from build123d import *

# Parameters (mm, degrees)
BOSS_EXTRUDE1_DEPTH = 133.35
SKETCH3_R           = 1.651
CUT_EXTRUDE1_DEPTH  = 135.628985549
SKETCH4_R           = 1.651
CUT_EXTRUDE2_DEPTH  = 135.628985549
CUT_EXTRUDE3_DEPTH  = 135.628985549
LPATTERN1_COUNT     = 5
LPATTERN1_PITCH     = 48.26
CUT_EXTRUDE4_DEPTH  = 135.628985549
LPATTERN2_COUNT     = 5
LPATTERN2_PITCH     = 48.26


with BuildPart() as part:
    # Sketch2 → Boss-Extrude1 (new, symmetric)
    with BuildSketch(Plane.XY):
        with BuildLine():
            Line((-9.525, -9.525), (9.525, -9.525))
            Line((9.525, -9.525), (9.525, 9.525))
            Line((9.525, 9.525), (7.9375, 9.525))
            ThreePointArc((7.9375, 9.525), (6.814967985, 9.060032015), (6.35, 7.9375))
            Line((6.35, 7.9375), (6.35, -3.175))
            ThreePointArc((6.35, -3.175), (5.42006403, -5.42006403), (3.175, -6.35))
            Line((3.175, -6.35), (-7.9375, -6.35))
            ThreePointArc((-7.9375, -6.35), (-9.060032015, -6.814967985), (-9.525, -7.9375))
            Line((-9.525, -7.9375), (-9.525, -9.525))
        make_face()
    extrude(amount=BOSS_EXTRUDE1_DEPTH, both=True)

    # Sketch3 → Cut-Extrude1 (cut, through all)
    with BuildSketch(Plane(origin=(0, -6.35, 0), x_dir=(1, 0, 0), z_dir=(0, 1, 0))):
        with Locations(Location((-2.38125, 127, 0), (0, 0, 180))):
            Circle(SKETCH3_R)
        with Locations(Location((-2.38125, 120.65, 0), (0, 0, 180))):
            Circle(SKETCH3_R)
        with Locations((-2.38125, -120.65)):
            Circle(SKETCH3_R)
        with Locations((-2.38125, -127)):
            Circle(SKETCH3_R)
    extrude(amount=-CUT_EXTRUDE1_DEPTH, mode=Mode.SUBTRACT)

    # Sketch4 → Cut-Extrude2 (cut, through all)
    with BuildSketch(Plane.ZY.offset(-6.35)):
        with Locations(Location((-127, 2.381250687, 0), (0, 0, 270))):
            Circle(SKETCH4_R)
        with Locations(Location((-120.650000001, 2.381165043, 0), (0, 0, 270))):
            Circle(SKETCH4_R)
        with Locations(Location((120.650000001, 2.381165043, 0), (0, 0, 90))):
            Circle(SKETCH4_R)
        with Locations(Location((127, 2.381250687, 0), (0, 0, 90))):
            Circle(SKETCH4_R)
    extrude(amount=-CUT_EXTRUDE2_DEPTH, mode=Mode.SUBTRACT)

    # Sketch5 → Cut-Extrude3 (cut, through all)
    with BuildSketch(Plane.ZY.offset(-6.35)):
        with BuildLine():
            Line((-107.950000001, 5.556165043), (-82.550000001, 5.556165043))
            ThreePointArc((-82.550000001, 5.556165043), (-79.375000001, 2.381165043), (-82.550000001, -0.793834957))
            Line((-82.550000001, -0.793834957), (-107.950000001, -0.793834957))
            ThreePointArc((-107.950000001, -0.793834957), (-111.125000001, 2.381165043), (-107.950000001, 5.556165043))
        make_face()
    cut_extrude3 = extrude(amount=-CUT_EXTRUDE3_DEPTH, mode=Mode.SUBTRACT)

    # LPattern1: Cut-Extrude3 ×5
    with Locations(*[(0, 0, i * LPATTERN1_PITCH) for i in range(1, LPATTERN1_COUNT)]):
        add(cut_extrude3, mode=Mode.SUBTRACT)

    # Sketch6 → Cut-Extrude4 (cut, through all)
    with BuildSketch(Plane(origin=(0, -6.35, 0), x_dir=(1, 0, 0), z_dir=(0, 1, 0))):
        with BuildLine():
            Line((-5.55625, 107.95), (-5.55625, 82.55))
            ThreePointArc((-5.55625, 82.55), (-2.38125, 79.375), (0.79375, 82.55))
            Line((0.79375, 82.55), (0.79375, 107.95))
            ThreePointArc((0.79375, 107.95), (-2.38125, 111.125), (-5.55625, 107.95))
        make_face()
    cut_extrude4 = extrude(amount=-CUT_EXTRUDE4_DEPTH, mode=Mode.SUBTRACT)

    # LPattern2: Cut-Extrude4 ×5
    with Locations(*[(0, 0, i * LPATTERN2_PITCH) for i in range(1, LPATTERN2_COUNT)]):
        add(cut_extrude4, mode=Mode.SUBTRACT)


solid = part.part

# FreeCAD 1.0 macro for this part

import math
import FreeCAD as App
import Part
import Sketcher
Q = App.Units.Quantity

doc = App.newDocument("Part")
body = doc.addObject("PartDesign::Body", "Body")

# Sketch on XY plane
sketch1 = body.newObject("Sketcher::SketchObject", "Sketch")
sketch1.AttachmentSupport = (doc.getObject("XY_Plane"), [""])
sketch1.MapMode = "FlatFace"
sketch1.addGeometry(Part.LineSegment(App.Vector(-9.5, -9.5, 0), App.Vector(9.5, -9.5, 0)), False)
sketch1.addGeometry(Part.LineSegment(App.Vector(9.5, -9.5, 0), App.Vector(9.5, 9.5, 0)), False)
sketch1.addGeometry(Part.LineSegment(App.Vector(9.5, 9.5, 0), App.Vector(7.9, 9.5, 0)), False)
sketch1.addGeometry(Part.ArcOfCircle(Part.Circle(App.Vector(7.9, 7.9, 0), App.Vector(0, 0, 1), 1.6), math.radians(90), math.radians(180)), False)
sketch1.addGeometry(Part.LineSegment(App.Vector(6.3, 7.9, 0), App.Vector(6.3, -3.2, 0)), False)
sketch1.addGeometry(Part.ArcOfCircle(Part.Circle(App.Vector(3.2, -3.2, 0), App.Vector(0, 0, 1), 3.2), math.radians(-90), math.radians(0)), False)
sketch1.addGeometry(Part.LineSegment(App.Vector(3.2, -6.3, 0), App.Vector(-7.9, -6.3, 0)), False)
sketch1.addGeometry(Part.ArcOfCircle(Part.Circle(App.Vector(-7.9, -7.9, 0), App.Vector(0, 0, 1), 1.6), math.radians(90), math.radians(180)), False)
sketch1.addGeometry(Part.LineSegment(App.Vector(-9.5, -7.9, 0), App.Vector(-9.5, -9.5, 0)), False)
sketch1.addConstraint(Sketcher.Constraint("Coincident", 0, 2, 1, 1))
sketch1.addConstraint(Sketcher.Constraint("Coincident", 1, 2, 2, 1))
sketch1.addConstraint(Sketcher.Constraint("Tangent", 2, 2, 3, 1))
sketch1.addConstraint(Sketcher.Constraint("Tangent", 3, 2, 4, 1))
sketch1.addConstraint(Sketcher.Constraint("Tangent", 4, 2, 5, 2))
sketch1.addConstraint(Sketcher.Constraint("Tangent", 5, 1, 6, 1))
sketch1.addConstraint(Sketcher.Constraint("Tangent", 6, 2, 7, 1))
sketch1.addConstraint(Sketcher.Constraint("Tangent", 7, 2, 8, 1))
sketch1.addConstraint(Sketcher.Constraint("Coincident", 8, 2, 0, 1))
sketch1.addConstraint(Sketcher.Constraint("Horizontal", 0))
sketch1.addConstraint(Sketcher.Constraint("Vertical", 1))
sketch1.addConstraint(Sketcher.Constraint("Horizontal", 2))
sketch1.addConstraint(Sketcher.Constraint("Vertical", 4))
sketch1.addConstraint(Sketcher.Constraint("Horizontal", 6))
sketch1.addConstraint(Sketcher.Constraint("Vertical", 8))
sketch1.addConstraint(Sketcher.Constraint("Equal", 3, 7))
sketch1.addConstraint(Sketcher.Constraint("Symmetric", 3, 3, 7, 3, -1, 1))
sketch1.addConstraint(Sketcher.Constraint("Symmetric", 1, 2, 8, 2, -1, 1))
sketch1.addConstraint(Sketcher.Constraint("Equal", 0, 1))
sketch1.addConstraint(Sketcher.Constraint("Radius", 3, Q("0.0625 in")))
sketch1.addConstraint(Sketcher.Constraint("Radius", 5, Q("0.125 in")))
sketch1.addConstraint(Sketcher.Constraint("DistanceX", 0, 1, 0, 2, Q("0.75 in")))
pad1 = body.newObject("PartDesign::Pad", "Pad")
pad1.Profile = sketch1
pad1.Length = Q("10.5 in")
pad1.Midplane = True

# Sketch on XZ plane
sketch2 = body.newObject("Sketcher::SketchObject", "Sketch001")
sketch2.AttachmentSupport = (doc.getObject("XZ_Plane"), [""])
sketch2.MapMode = "FlatFace"
sketch2.AttachmentOffset = App.Placement(App.Vector(0, 0, 0.25 * 25.4), App.Rotation())
sketch2.addGeometry(Part.Circle(App.Vector(-2.4, -127, 0), App.Vector(0, 0, 1), 1.7), False)
sketch2.addGeometry(Part.Circle(App.Vector(-2.4, -120.7, 0), App.Vector(0, 0, 1), 1.7), False)
sketch2.addGeometry(Part.Circle(App.Vector(-2.4, 120.7, 0), App.Vector(0, 0, 1), 1.7), False)
sketch2.addGeometry(Part.Circle(App.Vector(-2.4, 127, 0), App.Vector(0, 0, 1), 1.7), False)
sketch2.addConstraint(Sketcher.Constraint("Equal", 0, 1))
sketch2.addConstraint(Sketcher.Constraint("Equal", 1, 2))
sketch2.addConstraint(Sketcher.Constraint("Equal", 2, 3))
sketch2.addConstraint(Sketcher.Constraint("Symmetric", 1, 3, 2, 3, -1))
sketch2.addConstraint(Sketcher.Constraint("Symmetric", 0, 3, 3, 3, -1))
sketch2.addConstraint(Sketcher.Constraint("Vertical", 0, 3, 1, 3))
sketch2.addConstraint(Sketcher.Constraint("Diameter", 0, Q("0.13 in")))
sketch2.addConstraint(Sketcher.Constraint("DistanceY", 0, 3, -1, 1, Q("5 in")))
sketch2.addConstraint(Sketcher.Constraint("DistanceY", 1, 3, 2, 3, Q("9.5 in")))
sketch2.addConstraint(Sketcher.Constraint("DistanceX", 0, 3, -1, 1, Q("0.09375 in")))
pocket1 = body.newObject("PartDesign::Pocket", "Pocket")
pocket1.Profile = sketch2
pocket1.Type = "ThroughAll"
pocket1.Reversed = True

# Sketch on YZ plane
sketch3 = body.newObject("Sketcher::SketchObject", "Sketch002")
sketch3.AttachmentSupport = (doc.getObject("YZ_Plane"), [""])
sketch3.MapMode = "FlatFace"
sketch3.AttachmentOffset = App.Placement(App.Vector(0, 0, 0.25 * 25.4), App.Rotation())
sketch3.addGeometry(Part.Circle(App.Vector(2.4, -127, 0), App.Vector(0, 0, 1), 1.7), False)
sketch3.addGeometry(Part.Circle(App.Vector(2.4, -120.7, 0), App.Vector(0, 0, 1), 1.7), False)
sketch3.addGeometry(Part.Circle(App.Vector(2.4, 120.7, 0), App.Vector(0, 0, 1), 1.7), False)
sketch3.addGeometry(Part.Circle(App.Vector(2.4, 127, 0), App.Vector(0, 0, 1), 1.7), False)
sketch3.addConstraint(Sketcher.Constraint("Equal", 0, 1))
sketch3.addConstraint(Sketcher.Constraint("Equal", 1, 2))
sketch3.addConstraint(Sketcher.Constraint("Equal", 2, 3))
sketch3.addConstraint(Sketcher.Constraint("Symmetric", 1, 3, 2, 3, -1))
sketch3.addConstraint(Sketcher.Constraint("Symmetric", 0, 3, 3, 3, -1))
sketch3.addConstraint(Sketcher.Constraint("Diameter", 0, Q("0.13 in")))
sketch3.addConstraint(Sketcher.Constraint("DistanceY", 0, 3, -1, 1, Q("5 in")))
sketch3.addConstraint(Sketcher.Constraint("DistanceY", 1, 3, 2, 3, Q("9.5 in")))
sketch3.addConstraint(Sketcher.Constraint("DistanceX", -1, 1, 0, 3, Q("0.09375 in")))
sketch3.addConstraint(Sketcher.Constraint("DistanceX", -1, 1, 1, 3, 2.381165))
pocket2 = body.newObject("PartDesign::Pocket", "Pocket001")
pocket2.Profile = sketch3
pocket2.Type = "ThroughAll"
pocket2.Reversed = True

# Sketch on YZ plane
sketch4 = body.newObject("Sketcher::SketchObject", "Sketch003")
sketch4.AttachmentSupport = (doc.getObject("YZ_Plane"), [""])
sketch4.MapMode = "FlatFace"
sketch4.AttachmentOffset = App.Placement(App.Vector(0, 0, 0.25 * 25.4), App.Rotation())
sketch4.addGeometry(Part.LineSegment(App.Vector(5.6, -82.6, 0), App.Vector(5.6, -108, 0)), False)
sketch4.addGeometry(Part.ArcOfCircle(Part.Circle(App.Vector(2.4, -108, 0), App.Vector(0, 0, 1), 3.2), math.radians(180), math.radians(360)), False)
sketch4.addGeometry(Part.LineSegment(App.Vector(-0.8, -108, 0), App.Vector(-0.8, -82.6, 0)), False)
sketch4.addGeometry(Part.ArcOfCircle(Part.Circle(App.Vector(2.4, -82.6, 0), App.Vector(0, 0, 1), 3.2), math.radians(0), math.radians(180)), False)
sketch4.addConstraint(Sketcher.Constraint("Tangent", 0, 2, 1, 2))
sketch4.addConstraint(Sketcher.Constraint("Tangent", 1, 1, 2, 1))
sketch4.addConstraint(Sketcher.Constraint("Tangent", 2, 2, 3, 2))
sketch4.addConstraint(Sketcher.Constraint("Tangent", 3, 1, 0, 1))
sketch4.addConstraint(Sketcher.Constraint("Vertical", 0))
sketch4.addConstraint(Sketcher.Constraint("Vertical", 2))
sketch4.addConstraint(Sketcher.Constraint("DistanceY", 0, 2, 0, 1, Q("1 in")))
sketch4.addConstraint(Sketcher.Constraint("Radius", 1, Q("0.125 in")))
sketch4.addConstraint(Sketcher.Constraint("DistanceY", 1, 3, -1, 1, Q("4.25 in")))
sketch4.addConstraint(Sketcher.Constraint("DistanceX", -1, 1, 1, 3, 2.381165))
pocket3 = body.newObject("PartDesign::Pocket", "Pocket002")
pocket3.Profile = sketch4
pocket3.Type = "ThroughAll"
pocket3.Reversed = True
doc.recompute()

linearpattern = body.newObject("PartDesign::LinearPattern", "LinearPattern")
linearpattern.Originals = [pocket3]
linearpattern.Direction = (doc.getObject("Z_Axis"), [""])
linearpattern.Mode = "offset"
linearpattern.Offset = Q("1.9 in")
linearpattern.Occurrences = 5
body.Tip = linearpattern

# Sketch on XZ plane
sketch5 = body.newObject("Sketcher::SketchObject", "Sketch004")
sketch5.AttachmentSupport = (doc.getObject("XZ_Plane"), [""])
sketch5.MapMode = "FlatFace"
sketch5.AttachmentOffset = App.Placement(App.Vector(0, 0, 0.25 * 25.4), App.Rotation())
sketch5.addGeometry(Part.LineSegment(App.Vector(-5.6, -108, 0), App.Vector(-5.6, -82.5, 0)), False)
sketch5.addGeometry(Part.ArcOfCircle(Part.Circle(App.Vector(-2.4, -82.5, 0), App.Vector(0, 0, 1), 3.2), math.radians(0), math.radians(180)), False)
sketch5.addGeometry(Part.LineSegment(App.Vector(0.8, -82.5, 0), App.Vector(0.8, -108, 0)), False)
sketch5.addGeometry(Part.ArcOfCircle(Part.Circle(App.Vector(-2.4, -108, 0), App.Vector(0, 0, 1), 3.2), math.radians(180), math.radians(360)), False)
sketch5.addConstraint(Sketcher.Constraint("Tangent", 0, 2, 1, 2))
sketch5.addConstraint(Sketcher.Constraint("Tangent", 1, 1, 2, 1))
sketch5.addConstraint(Sketcher.Constraint("Tangent", 2, 2, 3, 2))
sketch5.addConstraint(Sketcher.Constraint("Tangent", 3, 1, 0, 1))
sketch5.addConstraint(Sketcher.Constraint("Vertical", 0))
sketch5.addConstraint(Sketcher.Constraint("Vertical", 2))
sketch5.addConstraint(Sketcher.Constraint("DistanceY", 0, 1, 0, 2, Q("1 in")))
sketch5.addConstraint(Sketcher.Constraint("Radius", 1, Q("0.125 in")))
sketch5.addConstraint(Sketcher.Constraint("DistanceY", 1, 3, -1, 1, Q("3.25 in")))
sketch5.addConstraint(Sketcher.Constraint("DistanceX", 1, 3, -1, 1, Q("0.09375 in")))
pocket4 = body.newObject("PartDesign::Pocket", "Pocket003")
pocket4.Profile = sketch5
pocket4.Type = "ThroughAll"
pocket4.Reversed = True
doc.recompute()

linearpattern2 = body.newObject("PartDesign::LinearPattern", "LinearPattern001")
linearpattern2.Originals = [pocket4]
linearpattern2.Direction = (doc.getObject("Z_Axis"), [""])
linearpattern2.Mode = "offset"
linearpattern2.Offset = Q("1.9 in")
linearpattern2.Occurrences = 5
body.Tip = linearpattern2

doc.recompute()
